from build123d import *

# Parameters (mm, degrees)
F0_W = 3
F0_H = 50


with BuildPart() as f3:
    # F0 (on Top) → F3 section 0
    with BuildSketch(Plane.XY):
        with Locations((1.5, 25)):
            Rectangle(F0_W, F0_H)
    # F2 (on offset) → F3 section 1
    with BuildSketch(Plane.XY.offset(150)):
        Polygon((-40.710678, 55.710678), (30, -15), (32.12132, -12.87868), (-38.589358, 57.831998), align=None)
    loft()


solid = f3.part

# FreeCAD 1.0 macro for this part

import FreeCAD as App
import Part
import Sketcher
Q = App.Units.Quantity


def add_polygon(sketch, points):
    """Adds a closed chain of lines whose ends are joined by coincident constraints."""
    first, n = sketch.GeometryCount, len(points)
    for a, b in zip(points, points[1:] + points[:1]):
        sketch.addGeometry(Part.LineSegment(App.Vector(*a, 0), App.Vector(*b, 0)), False)
    for i in range(n):
        sketch.addConstraint(Sketcher.Constraint("Coincident", first + i, 2, first + (i + 1) % n, 1))

doc = App.newDocument("Part")
body = doc.addObject("PartDesign::Body", "Body")

sketch1 = body.newObject("Sketcher::SketchObject", "Sketch")
sketch1.AttachmentSupport = (doc.getObject("XY_Plane"), [""])
sketch1.MapMode = "FlatFace"
add_polygon(sketch1, [(0, 50), (0, 0), (3, 0), (3, 50)])
sketch1.addConstraint(Sketcher.Constraint("Vertical", 0))
sketch1.addConstraint(Sketcher.Constraint("Horizontal", 1))
sketch1.addConstraint(Sketcher.Constraint("Vertical", 2))
sketch1.addConstraint(Sketcher.Constraint("Horizontal", 3))
sketch1.addConstraint(Sketcher.Constraint("Coincident", 0, 2, -1, 1))
sketch1.addConstraint(Sketcher.Constraint("DistanceX", 1, 1, 1, 2, Q("3 mm")))
sketch1.addConstraint(Sketcher.Constraint("DistanceY", 0, 2, 0, 1, Q("50 mm")))

sketch2 = body.newObject("Sketcher::SketchObject", "Sketch001")
sketch2.AttachmentSupport = (doc.getObject("XY_Plane"), [""])
sketch2.MapMode = "FlatFace"
sketch2.AttachmentOffset = App.Placement(App.Vector(0, 0, 150), App.Rotation())
add_polygon(sketch2, [(-40.7, 55.7), (30, -15), (32.1, -12.9), (-38.6, 57.8)])
sketch2.addConstraint(Sketcher.Constraint("Perpendicular", 0, 1))
sketch2.addConstraint(Sketcher.Constraint("Perpendicular", 1, 2))
sketch2.addConstraint(Sketcher.Constraint("Perpendicular", 2, 3))
sketch2.addConstraint(Sketcher.Constraint("Angle", 0, Q("-45 deg")))
sketch2.addConstraint(Sketcher.Constraint("Distance", 0, Q("100 mm")))
sketch2.addConstraint(Sketcher.Constraint("Distance", 1, Q("3 mm")))
sketch2.addConstraint(Sketcher.Constraint("DistanceX", -1, 1, 0, 2, Q("30 mm")))
sketch2.addConstraint(Sketcher.Constraint("DistanceY", 0, 2, -1, 1, Q("15 mm")))

additiveloft = body.newObject("PartDesign::AdditiveLoft", "AdditiveLoft")
additiveloft.Profile = sketch1
additiveloft.Sections = [sketch2]

doc.recompute()
